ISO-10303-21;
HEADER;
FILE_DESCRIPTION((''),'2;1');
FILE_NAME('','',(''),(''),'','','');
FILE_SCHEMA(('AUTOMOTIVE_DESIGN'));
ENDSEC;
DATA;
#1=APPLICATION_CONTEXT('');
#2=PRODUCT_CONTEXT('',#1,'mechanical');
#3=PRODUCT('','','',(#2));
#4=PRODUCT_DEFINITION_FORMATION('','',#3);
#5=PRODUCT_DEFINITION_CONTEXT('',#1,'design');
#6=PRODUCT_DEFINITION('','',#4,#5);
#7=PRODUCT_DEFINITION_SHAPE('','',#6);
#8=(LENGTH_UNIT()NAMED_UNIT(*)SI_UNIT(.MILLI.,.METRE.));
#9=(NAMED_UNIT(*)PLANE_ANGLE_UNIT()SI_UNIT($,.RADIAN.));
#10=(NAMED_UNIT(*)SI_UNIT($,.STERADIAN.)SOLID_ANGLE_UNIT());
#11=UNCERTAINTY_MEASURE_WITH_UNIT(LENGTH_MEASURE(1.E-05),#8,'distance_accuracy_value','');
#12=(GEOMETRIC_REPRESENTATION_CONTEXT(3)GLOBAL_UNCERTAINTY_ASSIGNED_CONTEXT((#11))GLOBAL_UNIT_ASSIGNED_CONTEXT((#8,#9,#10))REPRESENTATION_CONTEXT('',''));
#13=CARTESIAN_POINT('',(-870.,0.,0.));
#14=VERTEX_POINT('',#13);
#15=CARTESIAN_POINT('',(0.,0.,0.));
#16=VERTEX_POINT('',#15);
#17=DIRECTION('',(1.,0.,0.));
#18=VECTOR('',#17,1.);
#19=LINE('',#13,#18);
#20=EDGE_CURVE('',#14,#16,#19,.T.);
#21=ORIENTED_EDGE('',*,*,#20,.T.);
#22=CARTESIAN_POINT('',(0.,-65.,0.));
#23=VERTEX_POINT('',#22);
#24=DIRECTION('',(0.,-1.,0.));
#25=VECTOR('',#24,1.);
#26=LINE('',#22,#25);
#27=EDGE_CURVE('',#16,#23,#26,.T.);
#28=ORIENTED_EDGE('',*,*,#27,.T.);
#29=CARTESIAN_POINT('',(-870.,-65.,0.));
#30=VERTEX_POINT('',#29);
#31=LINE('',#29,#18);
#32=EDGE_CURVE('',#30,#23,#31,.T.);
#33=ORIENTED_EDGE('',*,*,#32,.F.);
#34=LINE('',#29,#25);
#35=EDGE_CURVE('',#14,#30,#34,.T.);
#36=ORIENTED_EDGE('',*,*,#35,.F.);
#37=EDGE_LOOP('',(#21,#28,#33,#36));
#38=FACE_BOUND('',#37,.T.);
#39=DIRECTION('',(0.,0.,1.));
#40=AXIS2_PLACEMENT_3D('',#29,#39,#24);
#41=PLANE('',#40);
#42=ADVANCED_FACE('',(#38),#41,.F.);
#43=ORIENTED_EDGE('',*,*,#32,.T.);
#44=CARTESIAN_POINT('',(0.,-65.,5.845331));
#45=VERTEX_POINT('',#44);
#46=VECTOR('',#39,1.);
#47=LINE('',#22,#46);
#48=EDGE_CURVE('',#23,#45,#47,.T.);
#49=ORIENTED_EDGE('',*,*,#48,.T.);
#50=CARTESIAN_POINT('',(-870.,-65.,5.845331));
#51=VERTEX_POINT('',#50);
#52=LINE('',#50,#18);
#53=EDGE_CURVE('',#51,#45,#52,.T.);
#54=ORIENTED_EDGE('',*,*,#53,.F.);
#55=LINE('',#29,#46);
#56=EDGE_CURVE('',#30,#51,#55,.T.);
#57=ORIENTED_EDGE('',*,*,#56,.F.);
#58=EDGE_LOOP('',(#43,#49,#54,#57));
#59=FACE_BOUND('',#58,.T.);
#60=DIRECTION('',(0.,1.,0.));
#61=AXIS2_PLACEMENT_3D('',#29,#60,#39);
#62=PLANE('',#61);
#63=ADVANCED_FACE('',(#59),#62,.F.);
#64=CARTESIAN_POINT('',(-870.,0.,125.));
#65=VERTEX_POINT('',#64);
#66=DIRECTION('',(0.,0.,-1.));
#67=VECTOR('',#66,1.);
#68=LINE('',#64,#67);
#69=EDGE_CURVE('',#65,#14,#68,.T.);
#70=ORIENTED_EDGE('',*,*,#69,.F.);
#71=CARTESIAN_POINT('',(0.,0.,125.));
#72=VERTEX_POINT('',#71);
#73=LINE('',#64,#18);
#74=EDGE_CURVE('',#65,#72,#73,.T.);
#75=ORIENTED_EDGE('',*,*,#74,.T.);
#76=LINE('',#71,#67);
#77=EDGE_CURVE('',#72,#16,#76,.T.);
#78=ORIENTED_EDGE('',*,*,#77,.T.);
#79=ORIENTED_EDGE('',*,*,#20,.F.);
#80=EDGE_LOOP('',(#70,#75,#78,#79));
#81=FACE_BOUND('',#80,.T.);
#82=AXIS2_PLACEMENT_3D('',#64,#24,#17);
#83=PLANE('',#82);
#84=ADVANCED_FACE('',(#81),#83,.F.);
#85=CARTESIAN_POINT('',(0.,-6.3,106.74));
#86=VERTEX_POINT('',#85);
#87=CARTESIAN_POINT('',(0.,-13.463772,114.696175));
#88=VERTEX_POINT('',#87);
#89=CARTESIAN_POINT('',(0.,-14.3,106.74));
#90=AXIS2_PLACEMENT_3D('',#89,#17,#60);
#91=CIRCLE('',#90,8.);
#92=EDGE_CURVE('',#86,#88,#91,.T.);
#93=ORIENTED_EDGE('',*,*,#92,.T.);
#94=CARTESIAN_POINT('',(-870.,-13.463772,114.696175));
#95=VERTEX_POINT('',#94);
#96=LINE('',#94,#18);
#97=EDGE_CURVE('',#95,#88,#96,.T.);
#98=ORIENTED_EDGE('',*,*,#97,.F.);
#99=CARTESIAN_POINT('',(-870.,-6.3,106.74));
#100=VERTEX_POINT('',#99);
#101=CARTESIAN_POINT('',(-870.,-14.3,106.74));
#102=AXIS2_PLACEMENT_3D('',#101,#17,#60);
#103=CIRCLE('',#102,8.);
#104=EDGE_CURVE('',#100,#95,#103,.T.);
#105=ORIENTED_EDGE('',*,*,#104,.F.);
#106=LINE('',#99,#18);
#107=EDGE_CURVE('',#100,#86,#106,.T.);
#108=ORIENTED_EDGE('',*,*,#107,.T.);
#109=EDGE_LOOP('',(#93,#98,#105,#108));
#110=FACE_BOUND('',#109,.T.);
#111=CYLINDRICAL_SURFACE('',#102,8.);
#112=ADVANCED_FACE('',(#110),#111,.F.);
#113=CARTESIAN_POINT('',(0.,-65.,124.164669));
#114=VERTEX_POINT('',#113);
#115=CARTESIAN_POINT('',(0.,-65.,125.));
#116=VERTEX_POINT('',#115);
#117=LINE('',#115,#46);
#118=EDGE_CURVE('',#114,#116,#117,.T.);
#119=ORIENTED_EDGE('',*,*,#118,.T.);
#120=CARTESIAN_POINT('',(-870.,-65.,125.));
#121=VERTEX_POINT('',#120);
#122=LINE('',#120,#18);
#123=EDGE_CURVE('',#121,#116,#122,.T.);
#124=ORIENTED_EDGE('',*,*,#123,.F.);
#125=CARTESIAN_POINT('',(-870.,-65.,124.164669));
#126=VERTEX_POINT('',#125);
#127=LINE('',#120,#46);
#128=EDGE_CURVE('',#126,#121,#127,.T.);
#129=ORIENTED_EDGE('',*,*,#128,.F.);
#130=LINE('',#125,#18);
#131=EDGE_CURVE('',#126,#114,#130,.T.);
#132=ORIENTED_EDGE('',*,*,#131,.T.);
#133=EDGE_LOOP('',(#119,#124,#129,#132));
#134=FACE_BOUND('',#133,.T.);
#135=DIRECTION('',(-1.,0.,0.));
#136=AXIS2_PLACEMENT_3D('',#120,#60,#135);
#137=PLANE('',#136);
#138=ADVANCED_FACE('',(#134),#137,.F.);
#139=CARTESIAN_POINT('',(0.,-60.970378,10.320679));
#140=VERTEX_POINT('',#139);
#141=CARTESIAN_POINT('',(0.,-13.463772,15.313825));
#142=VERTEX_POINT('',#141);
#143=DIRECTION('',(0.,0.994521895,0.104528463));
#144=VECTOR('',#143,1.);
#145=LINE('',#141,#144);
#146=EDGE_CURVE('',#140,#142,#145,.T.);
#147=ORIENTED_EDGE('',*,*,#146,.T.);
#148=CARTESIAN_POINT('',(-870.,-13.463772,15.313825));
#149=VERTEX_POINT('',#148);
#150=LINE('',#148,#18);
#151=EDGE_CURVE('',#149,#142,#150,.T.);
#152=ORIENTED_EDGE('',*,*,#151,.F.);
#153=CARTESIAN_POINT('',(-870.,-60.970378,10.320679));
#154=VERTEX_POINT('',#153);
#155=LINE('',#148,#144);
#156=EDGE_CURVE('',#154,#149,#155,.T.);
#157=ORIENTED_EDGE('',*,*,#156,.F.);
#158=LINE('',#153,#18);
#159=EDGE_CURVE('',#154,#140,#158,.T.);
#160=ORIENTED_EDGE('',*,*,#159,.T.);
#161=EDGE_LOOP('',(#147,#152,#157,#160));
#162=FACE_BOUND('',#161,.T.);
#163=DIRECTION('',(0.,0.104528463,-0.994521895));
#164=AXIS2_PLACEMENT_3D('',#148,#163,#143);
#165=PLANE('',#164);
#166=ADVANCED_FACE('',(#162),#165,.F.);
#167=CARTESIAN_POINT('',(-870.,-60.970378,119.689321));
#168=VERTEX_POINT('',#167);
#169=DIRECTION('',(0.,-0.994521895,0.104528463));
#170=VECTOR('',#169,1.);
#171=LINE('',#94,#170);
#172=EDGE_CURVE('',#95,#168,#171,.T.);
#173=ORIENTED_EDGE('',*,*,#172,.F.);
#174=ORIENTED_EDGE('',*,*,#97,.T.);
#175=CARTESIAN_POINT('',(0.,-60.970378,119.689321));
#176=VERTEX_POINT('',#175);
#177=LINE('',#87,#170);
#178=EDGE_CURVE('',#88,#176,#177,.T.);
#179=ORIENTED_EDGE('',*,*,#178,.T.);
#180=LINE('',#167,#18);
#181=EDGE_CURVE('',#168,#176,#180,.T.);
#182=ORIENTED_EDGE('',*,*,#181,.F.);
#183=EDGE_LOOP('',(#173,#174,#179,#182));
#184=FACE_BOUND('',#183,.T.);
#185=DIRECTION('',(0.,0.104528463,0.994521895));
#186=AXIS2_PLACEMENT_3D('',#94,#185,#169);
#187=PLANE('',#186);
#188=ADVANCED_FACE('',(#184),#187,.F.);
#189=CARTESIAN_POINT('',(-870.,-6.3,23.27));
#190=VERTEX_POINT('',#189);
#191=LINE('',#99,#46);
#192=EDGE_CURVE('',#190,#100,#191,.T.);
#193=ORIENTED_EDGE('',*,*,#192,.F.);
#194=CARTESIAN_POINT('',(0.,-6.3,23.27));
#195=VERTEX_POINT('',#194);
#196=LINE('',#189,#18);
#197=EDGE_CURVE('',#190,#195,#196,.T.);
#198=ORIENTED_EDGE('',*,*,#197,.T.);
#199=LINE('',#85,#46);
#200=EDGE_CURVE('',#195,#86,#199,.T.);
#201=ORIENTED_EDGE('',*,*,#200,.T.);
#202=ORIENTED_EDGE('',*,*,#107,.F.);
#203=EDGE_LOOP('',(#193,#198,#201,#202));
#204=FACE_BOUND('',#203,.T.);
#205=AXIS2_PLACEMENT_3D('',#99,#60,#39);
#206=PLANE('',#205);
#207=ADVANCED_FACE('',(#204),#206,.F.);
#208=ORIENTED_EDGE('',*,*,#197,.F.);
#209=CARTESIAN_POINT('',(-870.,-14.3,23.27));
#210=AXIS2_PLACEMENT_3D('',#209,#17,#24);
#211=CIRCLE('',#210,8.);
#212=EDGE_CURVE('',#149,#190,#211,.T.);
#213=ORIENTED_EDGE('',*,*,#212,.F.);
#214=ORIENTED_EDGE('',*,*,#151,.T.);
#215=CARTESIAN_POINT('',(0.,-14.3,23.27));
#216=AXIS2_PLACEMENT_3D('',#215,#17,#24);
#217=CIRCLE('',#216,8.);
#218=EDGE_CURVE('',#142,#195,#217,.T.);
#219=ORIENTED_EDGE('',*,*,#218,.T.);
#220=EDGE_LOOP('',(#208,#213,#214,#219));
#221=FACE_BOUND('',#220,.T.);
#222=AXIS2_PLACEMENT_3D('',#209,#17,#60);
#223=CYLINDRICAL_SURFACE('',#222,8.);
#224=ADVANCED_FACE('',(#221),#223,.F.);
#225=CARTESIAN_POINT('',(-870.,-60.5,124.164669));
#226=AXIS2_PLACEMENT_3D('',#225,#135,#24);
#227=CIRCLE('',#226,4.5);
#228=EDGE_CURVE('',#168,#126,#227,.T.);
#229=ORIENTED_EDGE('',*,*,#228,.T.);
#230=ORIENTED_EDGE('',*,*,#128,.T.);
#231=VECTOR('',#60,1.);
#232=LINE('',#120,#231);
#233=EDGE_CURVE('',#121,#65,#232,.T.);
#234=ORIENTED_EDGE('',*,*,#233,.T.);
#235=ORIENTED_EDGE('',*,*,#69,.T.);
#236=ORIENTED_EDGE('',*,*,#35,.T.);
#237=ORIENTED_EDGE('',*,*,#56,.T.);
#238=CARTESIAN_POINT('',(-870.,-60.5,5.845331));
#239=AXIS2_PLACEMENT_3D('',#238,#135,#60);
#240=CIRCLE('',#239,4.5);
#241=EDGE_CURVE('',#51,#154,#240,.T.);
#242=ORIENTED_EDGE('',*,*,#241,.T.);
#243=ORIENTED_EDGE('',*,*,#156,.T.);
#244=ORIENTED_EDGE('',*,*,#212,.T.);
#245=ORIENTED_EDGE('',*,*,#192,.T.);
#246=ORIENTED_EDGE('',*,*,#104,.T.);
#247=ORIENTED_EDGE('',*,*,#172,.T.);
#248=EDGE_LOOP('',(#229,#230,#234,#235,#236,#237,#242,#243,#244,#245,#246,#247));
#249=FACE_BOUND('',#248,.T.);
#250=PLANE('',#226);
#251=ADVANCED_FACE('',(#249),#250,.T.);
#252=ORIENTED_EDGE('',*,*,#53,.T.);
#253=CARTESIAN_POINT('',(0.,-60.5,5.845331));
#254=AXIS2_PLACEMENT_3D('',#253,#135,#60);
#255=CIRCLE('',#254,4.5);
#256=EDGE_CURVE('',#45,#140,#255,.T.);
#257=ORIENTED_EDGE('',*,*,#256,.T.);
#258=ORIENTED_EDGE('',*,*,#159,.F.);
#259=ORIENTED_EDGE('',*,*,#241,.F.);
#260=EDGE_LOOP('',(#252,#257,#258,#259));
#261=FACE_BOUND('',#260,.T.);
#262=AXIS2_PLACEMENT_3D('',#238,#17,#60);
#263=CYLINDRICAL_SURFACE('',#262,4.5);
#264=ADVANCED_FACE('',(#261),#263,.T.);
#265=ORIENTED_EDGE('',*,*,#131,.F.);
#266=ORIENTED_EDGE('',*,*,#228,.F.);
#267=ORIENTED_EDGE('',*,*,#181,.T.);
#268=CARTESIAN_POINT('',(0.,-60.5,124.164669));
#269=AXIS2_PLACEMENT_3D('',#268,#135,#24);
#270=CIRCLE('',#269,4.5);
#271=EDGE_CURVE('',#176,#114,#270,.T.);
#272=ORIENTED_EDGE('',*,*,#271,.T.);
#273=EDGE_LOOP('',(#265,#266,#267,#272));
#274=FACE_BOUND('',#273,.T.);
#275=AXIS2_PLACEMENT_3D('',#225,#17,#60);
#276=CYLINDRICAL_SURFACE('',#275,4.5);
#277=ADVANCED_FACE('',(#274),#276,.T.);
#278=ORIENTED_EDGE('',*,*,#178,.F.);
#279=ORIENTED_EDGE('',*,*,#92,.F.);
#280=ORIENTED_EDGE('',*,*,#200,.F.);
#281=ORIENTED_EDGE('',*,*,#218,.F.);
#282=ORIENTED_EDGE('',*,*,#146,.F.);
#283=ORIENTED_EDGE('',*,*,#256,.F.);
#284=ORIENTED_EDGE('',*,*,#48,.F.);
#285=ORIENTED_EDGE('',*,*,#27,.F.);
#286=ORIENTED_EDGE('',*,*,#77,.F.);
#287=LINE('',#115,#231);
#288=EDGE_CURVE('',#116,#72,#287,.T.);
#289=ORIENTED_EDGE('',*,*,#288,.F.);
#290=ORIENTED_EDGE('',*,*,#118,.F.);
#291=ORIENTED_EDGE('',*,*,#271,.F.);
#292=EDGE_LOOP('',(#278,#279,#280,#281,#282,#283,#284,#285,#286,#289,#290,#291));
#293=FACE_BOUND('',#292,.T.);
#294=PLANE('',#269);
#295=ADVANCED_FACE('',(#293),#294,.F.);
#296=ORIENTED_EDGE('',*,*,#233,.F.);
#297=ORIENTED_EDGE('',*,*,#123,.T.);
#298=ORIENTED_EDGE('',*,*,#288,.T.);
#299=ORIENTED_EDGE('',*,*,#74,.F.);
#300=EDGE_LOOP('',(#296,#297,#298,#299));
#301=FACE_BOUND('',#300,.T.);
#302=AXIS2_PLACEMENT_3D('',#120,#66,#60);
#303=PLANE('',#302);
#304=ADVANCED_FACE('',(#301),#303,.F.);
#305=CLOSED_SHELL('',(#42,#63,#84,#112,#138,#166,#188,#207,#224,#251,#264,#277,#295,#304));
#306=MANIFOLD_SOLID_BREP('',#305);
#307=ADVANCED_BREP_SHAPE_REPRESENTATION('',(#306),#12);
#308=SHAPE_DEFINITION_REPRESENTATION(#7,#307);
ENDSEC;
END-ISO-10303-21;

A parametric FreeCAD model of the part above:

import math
import FreeCAD as App
import Part
import Sketcher
from FreeCAD import Vector
Q = App.Units.Quantity

doc = App.newDocument("Part")
body = doc.addObject("PartDesign::Body", "Body")

sketch1 = doc.addObject("Sketcher::SketchObject", "Sketch")
body.addObject(sketch1)
sketch1.AttachmentSupport = (doc.YZ_Plane, [""])
sketch1.MapMode = "FlatFace"
sketch1.addGeometry([
    Part.LineSegment(Vector(-65, 125, 0), Vector(0, 125, 0)),
    Part.LineSegment(Vector(0, 125, 0), Vector(0, 0, 0)),
    Part.LineSegment(Vector(0, 0, 0), Vector(-65, 0, 0)),
    Part.LineSegment(Vector(-65, 0, 0), Vector(-65, 5.8, 0)),
    Part.ArcOfCircle(Part.Circle(Vector(-60.5, 5.8, 0), Vector(0, 0, 1), 4.5), math.radians(96), math.radians(180)),
    Part.LineSegment(Vector(-61, 10.3, 0), Vector(-13.5, 15.3, 0)),
    Part.ArcOfCircle(Part.Circle(Vector(-14.3, 23.3, 0), Vector(0, 0, 1), 8), math.radians(-84), math.radians(0)),
    Part.LineSegment(Vector(-6.3, 23.3, 0), Vector(-6.3, 106.7, 0)),
    Part.ArcOfCircle(Part.Circle(Vector(-14.3, 106.7, 0), Vector(0, 0, 1), 8), math.radians(0), math.radians(84)),
    Part.LineSegment(Vector(-13.5, 114.7, 0), Vector(-61, 119.7, 0)),
    Part.ArcOfCircle(Part.Circle(Vector(-60.5, 124.2, 0), Vector(0, 0, 1), 4.5), math.radians(180), math.radians(264)),
    Part.LineSegment(Vector(-65, 124.2, 0), Vector(-65, 125, 0)),
], False)
sketch1.addConstraint([
    Sketcher.Constraint("Coincident", 0, 2, 1, 1),
    Sketcher.Constraint("Coincident", 1, 2, 2, 1),
    Sketcher.Constraint("Coincident", 2, 2, 3, 1),
    Sketcher.Constraint("Tangent", 3, 2, 4, 2),
    Sketcher.Constraint("Tangent", 4, 1, 5, 1),
    Sketcher.Constraint("Tangent", 5, 2, 6, 1),
    Sketcher.Constraint("Tangent", 6, 2, 7, 1),
    Sketcher.Constraint("Tangent", 7, 2, 8, 1),
    Sketcher.Constraint("Tangent", 8, 2, 9, 1),
    Sketcher.Constraint("Tangent", 9, 2, 10, 2),
    Sketcher.Constraint("Tangent", 10, 1, 11, 1),
    Sketcher.Constraint("Coincident", 11, 2, 0, 1),
    Sketcher.Constraint("Horizontal", 0),
    Sketcher.Constraint("Vertical", 1),
    Sketcher.Constraint("Horizontal", 2),
    Sketcher.Constraint("Vertical", 3),
    Sketcher.Constraint("Vertical", 7),
    Sketcher.Constraint("Vertical", 11),
    Sketcher.Constraint("Coincident", 1, 2, -1, 1),
    Sketcher.Constraint("Equal", 6, 8),
    Sketcher.Constraint("Equal", 4, 10),
    Sketcher.Constraint("Vertical", 4, 3, 10, 3),
    Sketcher.Constraint("Vertical", 5, 2, 8, 2),
    Sketcher.Constraint("Radius", 6, Q("8 mm")),
    Sketcher.Constraint("Radius", 4, Q("4.5 mm")),
    Sketcher.Constraint("DistanceX", 0, 1, 0, 2, Q("65 mm")),
    Sketcher.Constraint("DistanceY", 1, 2, 1, 1, Q("125 mm")),
    Sketcher.Constraint("Angle", 5, Q("6 deg")),
    Sketcher.Constraint("DistanceY", 7, 1, 7, 2, Q("83.47 mm")),
    Sketcher.Constraint("DistanceX", 6, 3, -1, 1, Q("14.3 mm")),
    Sketcher.Constraint("DistanceY", -1, 1, 6, 3, Q("23.27 mm")),
])
pad1 = doc.addObject("PartDesign::Pad", "Pad")
body.addObject(pad1)
pad1.Profile = sketch1
pad1.Length = 870
pad1.Reversed = True

doc.recompute()
